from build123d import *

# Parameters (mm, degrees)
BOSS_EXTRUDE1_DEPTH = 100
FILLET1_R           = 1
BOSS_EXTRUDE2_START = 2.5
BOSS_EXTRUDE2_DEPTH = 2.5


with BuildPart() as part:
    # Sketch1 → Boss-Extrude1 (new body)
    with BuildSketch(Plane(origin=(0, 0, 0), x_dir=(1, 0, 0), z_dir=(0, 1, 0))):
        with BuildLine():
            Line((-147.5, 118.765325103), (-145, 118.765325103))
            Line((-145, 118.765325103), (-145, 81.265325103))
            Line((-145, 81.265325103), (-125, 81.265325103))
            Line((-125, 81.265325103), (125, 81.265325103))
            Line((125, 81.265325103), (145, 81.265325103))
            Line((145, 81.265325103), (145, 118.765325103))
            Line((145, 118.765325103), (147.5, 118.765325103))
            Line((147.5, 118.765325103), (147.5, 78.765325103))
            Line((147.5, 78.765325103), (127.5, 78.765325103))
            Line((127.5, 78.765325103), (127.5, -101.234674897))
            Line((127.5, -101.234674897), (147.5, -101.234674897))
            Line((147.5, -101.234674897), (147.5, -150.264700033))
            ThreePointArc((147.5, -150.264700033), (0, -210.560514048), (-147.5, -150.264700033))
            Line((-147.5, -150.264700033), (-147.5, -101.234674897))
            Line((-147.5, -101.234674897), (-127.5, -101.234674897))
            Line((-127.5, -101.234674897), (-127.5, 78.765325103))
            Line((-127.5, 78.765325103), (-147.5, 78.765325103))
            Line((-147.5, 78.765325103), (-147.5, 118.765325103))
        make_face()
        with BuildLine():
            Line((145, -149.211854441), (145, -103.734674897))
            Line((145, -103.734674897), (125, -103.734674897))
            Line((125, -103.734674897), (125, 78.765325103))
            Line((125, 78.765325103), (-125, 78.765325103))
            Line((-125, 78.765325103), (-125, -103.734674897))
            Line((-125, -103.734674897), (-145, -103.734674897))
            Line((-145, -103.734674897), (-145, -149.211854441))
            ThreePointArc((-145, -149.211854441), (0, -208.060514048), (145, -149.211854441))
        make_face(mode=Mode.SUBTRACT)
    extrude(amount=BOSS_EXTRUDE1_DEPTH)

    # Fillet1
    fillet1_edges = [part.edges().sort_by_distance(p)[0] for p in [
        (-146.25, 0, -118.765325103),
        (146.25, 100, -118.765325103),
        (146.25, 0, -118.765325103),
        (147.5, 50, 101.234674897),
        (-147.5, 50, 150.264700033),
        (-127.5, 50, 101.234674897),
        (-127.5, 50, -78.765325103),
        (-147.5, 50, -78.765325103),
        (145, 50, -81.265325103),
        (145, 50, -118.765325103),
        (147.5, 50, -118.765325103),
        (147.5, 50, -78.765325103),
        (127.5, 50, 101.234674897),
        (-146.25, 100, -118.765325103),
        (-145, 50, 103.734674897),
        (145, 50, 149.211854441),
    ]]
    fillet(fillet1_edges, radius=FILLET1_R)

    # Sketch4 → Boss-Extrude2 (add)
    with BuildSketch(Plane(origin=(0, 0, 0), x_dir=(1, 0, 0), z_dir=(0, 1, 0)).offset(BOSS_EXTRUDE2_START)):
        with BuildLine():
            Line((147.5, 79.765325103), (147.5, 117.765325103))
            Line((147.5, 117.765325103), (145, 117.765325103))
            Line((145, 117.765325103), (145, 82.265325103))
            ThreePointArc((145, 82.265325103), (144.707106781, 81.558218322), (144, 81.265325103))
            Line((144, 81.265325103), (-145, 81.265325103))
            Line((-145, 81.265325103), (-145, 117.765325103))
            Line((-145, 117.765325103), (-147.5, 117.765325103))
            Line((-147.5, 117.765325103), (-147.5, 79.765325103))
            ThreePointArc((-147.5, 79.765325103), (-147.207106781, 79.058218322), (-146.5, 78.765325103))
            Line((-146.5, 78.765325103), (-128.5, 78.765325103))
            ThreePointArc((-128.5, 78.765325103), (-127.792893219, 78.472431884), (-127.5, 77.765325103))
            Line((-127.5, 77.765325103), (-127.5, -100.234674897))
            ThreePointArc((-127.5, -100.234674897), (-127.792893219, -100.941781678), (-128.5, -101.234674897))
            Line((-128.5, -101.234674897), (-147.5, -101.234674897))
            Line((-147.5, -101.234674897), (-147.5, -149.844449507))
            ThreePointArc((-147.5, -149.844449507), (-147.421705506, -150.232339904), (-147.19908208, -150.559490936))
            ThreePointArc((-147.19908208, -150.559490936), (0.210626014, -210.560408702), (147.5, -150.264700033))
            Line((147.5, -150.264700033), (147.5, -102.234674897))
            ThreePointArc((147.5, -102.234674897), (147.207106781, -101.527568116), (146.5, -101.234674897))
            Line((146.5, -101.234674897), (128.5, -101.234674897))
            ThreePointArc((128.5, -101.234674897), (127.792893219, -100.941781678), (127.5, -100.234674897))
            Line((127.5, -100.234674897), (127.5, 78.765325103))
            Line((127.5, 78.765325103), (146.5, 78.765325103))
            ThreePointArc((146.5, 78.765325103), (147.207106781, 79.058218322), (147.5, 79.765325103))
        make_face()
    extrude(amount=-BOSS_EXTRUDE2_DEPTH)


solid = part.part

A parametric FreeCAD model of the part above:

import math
import FreeCAD as App
import Part
import Sketcher
Q = App.Units.Quantity


def edges_at(feature, points):
    """Names of the edges that pass closest to the given points."""
    edges = feature.Shape.Edges
    near = lambda p: min(range(len(edges)), key=lambda i: edges[i].distToShape(Part.Vertex(*p))[0])
    return sorted({f"Edge{near(p) + 1}" for p in points})

doc = App.newDocument("Part")
body = doc.addObject("PartDesign::Body", "Body")

sketch1 = body.newObject("Sketcher::SketchObject", "Sketch")
sketch1.AttachmentSupport = (doc.getObject("XZ_Plane"), [""])
sketch1.MapMode = "FlatFace"
sketch1.addGeometry([
    Part.LineSegment(App.Vector(-145, -118.765325, 0), App.Vector(-147.5, -118.765325, 0)),
    Part.LineSegment(App.Vector(-147.5, -118.765325, 0), App.Vector(-147.5, -78.765325, 0)),
    Part.LineSegment(App.Vector(-147.5, -78.765325, 0), App.Vector(-127.5, -78.765325, 0)),
    Part.LineSegment(App.Vector(-127.5, -78.765325, 0), App.Vector(-127.5, 101.234675, 0)),
    Part.LineSegment(App.Vector(-127.5, 101.234675, 0), App.Vector(-147.5, 101.234675, 0)),
    Part.LineSegment(App.Vector(-147.5, 101.234675, 0), App.Vector(-147.5, 150.2647, 0)),
    Part.ArcOfCircle(Part.Circle(App.Vector(0, 0, 0), App.Vector(0, 0, 1), 210.560514), math.radians(45.531967), math.radians(134.468033)),
    Part.LineSegment(App.Vector(147.5, 150.2647, 0), App.Vector(147.5, 101.234675, 0)),
    Part.LineSegment(App.Vector(147.5, 101.234675, 0), App.Vector(127.5, 101.234675, 0)),
    Part.LineSegment(App.Vector(127.5, 101.234675, 0), App.Vector(127.5, -78.765325, 0)),
    Part.LineSegment(App.Vector(127.5, -78.765325, 0), App.Vector(147.5, -78.765325, 0)),
    Part.LineSegment(App.Vector(147.5, -78.765325, 0), App.Vector(147.5, -118.765325, 0)),
    Part.LineSegment(App.Vector(147.5, -118.765325, 0), App.Vector(145, -118.765325, 0)),
    Part.LineSegment(App.Vector(145, -118.765325, 0), App.Vector(145, -81.265325, 0)),
    Part.LineSegment(App.Vector(145, -81.265325, 0), App.Vector(-145, -81.265325, 0)),
    Part.LineSegment(App.Vector(-145, -81.265325, 0), App.Vector(-145, -118.765325, 0)),
    Part.ArcOfCircle(Part.Circle(App.Vector(0, 0, 0), App.Vector(0, 0, 1), 208.060514), math.radians(45.820174), math.radians(134.179826)),
    Part.LineSegment(App.Vector(-145, 149.211854, 0), App.Vector(-145, 103.734675, 0)),
    Part.LineSegment(App.Vector(-145, 103.734675, 0), App.Vector(-125, 103.734675, 0)),
    Part.LineSegment(App.Vector(-125, 103.734675, 0), App.Vector(-125, -78.765325, 0)),
    Part.LineSegment(App.Vector(-125, -78.765325, 0), App.Vector(125, -78.765325, 0)),
    Part.LineSegment(App.Vector(125, -78.765325, 0), App.Vector(125, 103.734675, 0)),
    Part.LineSegment(App.Vector(125, 103.734675, 0), App.Vector(145, 103.734675, 0)),
    Part.LineSegment(App.Vector(145, 103.734675, 0), App.Vector(145, 149.211854, 0)),
], False)
sketch1.addConstraint([
    Sketcher.Constraint("Coincident", 0, 2, 1, 1),
    Sketcher.Constraint("Coincident", 1, 2, 2, 1),
    Sketcher.Constraint("Coincident", 2, 2, 3, 1),
    Sketcher.Constraint("Coincident", 3, 2, 4, 1),
    Sketcher.Constraint("Coincident", 4, 2, 5, 1),
    Sketcher.Constraint("Coincident", 5, 2, 6, 2),
    Sketcher.Constraint("Coincident", 6, 1, 7, 1),
    Sketcher.Constraint("Coincident", 7, 2, 8, 1),
    Sketcher.Constraint("Coincident", 8, 2, 9, 1),
    Sketcher.Constraint("Coincident", 9, 2, 10, 1),
    Sketcher.Constraint("Coincident", 10, 2, 11, 1),
    Sketcher.Constraint("Coincident", 11, 2, 12, 1),
    Sketcher.Constraint("Coincident", 12, 2, 13, 1),
    Sketcher.Constraint("Coincident", 13, 2, 14, 1),
    Sketcher.Constraint("Coincident", 14, 2, 15, 1),
    Sketcher.Constraint("Coincident", 15, 2, 0, 1),
    Sketcher.Constraint("Coincident", 16, 2, 17, 1),
    Sketcher.Constraint("Coincident", 17, 2, 18, 1),
    Sketcher.Constraint("Coincident", 18, 2, 19, 1),
    Sketcher.Constraint("Coincident", 19, 2, 20, 1),
    Sketcher.Constraint("Coincident", 20, 2, 21, 1),
    Sketcher.Constraint("Coincident", 21, 2, 22, 1),
    Sketcher.Constraint("Coincident", 22, 2, 23, 1),
    Sketcher.Constraint("Coincident", 23, 2, 16, 1),
    Sketcher.Constraint("Horizontal", 0),
    Sketcher.Constraint("Vertical", 1),
    Sketcher.Constraint("Horizontal", 2),
    Sketcher.Constraint("Vertical", 3),
    Sketcher.Constraint("Horizontal", 4),
    Sketcher.Constraint("Vertical", 5),
    Sketcher.Constraint("Vertical", 7),
    Sketcher.Constraint("Horizontal", 8),
    Sketcher.Constraint("Vertical", 9),
    Sketcher.Constraint("Horizontal", 10),
    Sketcher.Constraint("Vertical", 11),
    Sketcher.Constraint("Horizontal", 12),
    Sketcher.Constraint("Vertical", 13),
    Sketcher.Constraint("Horizontal", 14),
    Sketcher.Constraint("Vertical", 15),
    Sketcher.Constraint("Vertical", 17),
    Sketcher.Constraint("Horizontal", 18),
    Sketcher.Constraint("Vertical", 19),
    Sketcher.Constraint("Horizontal", 20),
    Sketcher.Constraint("Vertical", 21),
    Sketcher.Constraint("Horizontal", 22),
    Sketcher.Constraint("Vertical", 23),
    Sketcher.Constraint("Coincident", 6, 3, -1, 1),
    Sketcher.Constraint("Coincident", 16, 3, -1, 1),
    Sketcher.Constraint("Symmetric", 4, 2, 7, 2, -2),
    Sketcher.Constraint("Symmetric", 2, 2, 9, 2, -2),
    Sketcher.Constraint("Symmetric", 0, 2, 11, 2, -2),
    Sketcher.Constraint("Symmetric", 18, 2, 21, 2, -2),
    Sketcher.Constraint("Horizontal", 10, 2, 19, 2),
    Sketcher.Constraint("Horizontal", 16, 2, 23, 2),
    Sketcher.Constraint("Vertical", 1, 2, 4, 2),
    Sketcher.Constraint("Vertical", 15, 2, 16, 2),
    Sketcher.Constraint("Vertical", 13, 2, 22, 2),
    Sketcher.Constraint("Equal", 10, 18),
    Sketcher.Constraint("DistanceX", 2, 1, 2, 2, Q("20 mm")),
    Sketcher.Constraint("DistanceX", 14, 2, 14, 1, Q("290 mm")),
    Sketcher.Constraint("DistanceY", 1, 1, 1, 2, Q("40 mm")),
    Sketcher.Constraint("DistanceY", 3, 1, 3, 2, Q("180 mm")),
    Sketcher.Constraint("DistanceX", 0, 2, 0, 1, Q("2.5 mm")),
    Sketcher.Constraint("DistanceY", 13, 1, 13, 2, Q("37.5 mm")),
    Sketcher.Constraint("DistanceY", 19, 2, 19, 1, Q("182.5 mm")),
    Sketcher.Constraint("Radius", 6, Q("210.560514 mm")),
    Sketcher.Constraint("Radius", 16, Q("208.060514 mm")),
    Sketcher.Constraint("DistanceY", 17, 2, 17, 1, Q("45.47718 mm")),
])
pad1 = body.newObject("PartDesign::Pad", "Pad")
pad1.Profile = sketch1
pad1.Length = 100
pad1.Reversed = True
doc.recompute()

fillet = body.newObject("PartDesign::Fillet", "Fillet")
fillet.Base = (pad1, edges_at(pad1, [
    (-146.25, 0, -118.765),
    (146.25, 100, -118.765),
    (146.25, 0, -118.765),
    (147.5, 50, 101.235),
    (-147.5, 50, 150.265),
    (-127.5, 50, 101.235),
    (-127.5, 50, -78.765),
    (-147.5, 50, -78.765),
    (145, 50, -81.265),
    (145, 50, -118.765),
    (147.5, 50, -118.765),
    (147.5, 50, -78.765),
    (127.5, 50, 101.235),
    (-146.25, 100, -118.765),
    (-145, 50, 103.735),
    (145, 50, 149.212),
]))
fillet.Radius = 1

sketch2 = body.newObject("Sketcher::SketchObject", "Sketch001")
sketch2.AttachmentSupport = (doc.getObject("XZ_Plane"), [""])
sketch2.MapMode = "FlatFace"
sketch2.AttachmentOffset = App.Placement(App.Vector(0, 0, -2.5), App.Rotation())
sketch2.addGeometry([
    Part.LineSegment(App.Vector(147.5, -79.765325, 0), App.Vector(147.5, -117.765325, 0)),
    Part.LineSegment(App.Vector(147.5, -117.765325, 0), App.Vector(145, -117.765325, 0)),
    Part.LineSegment(App.Vector(145, -117.765325, 0), App.Vector(145, -82.265325, 0)),
    Part.ArcOfCircle(Part.Circle(App.Vector(144, -82.265325, 0), App.Vector(0, 0, 1), 1), math.radians(0), math.radians(90)),
    Part.LineSegment(App.Vector(144, -81.265325, 0), App.Vector(-145, -81.265325, 0)),
    Part.LineSegment(App.Vector(-145, -81.265325, 0), App.Vector(-145, -117.765325, 0)),
    Part.LineSegment(App.Vector(-145, -117.765325, 0), App.Vector(-147.5, -117.765325, 0)),
    Part.LineSegment(App.Vector(-147.5, -117.765325, 0), App.Vector(-147.5, -79.765325, 0)),
    Part.ArcOfCircle(Part.Circle(App.Vector(-146.5, -79.765325, 0), App.Vector(0, 0, 1), 1), math.radians(90), math.radians(180)),
    Part.LineSegment(App.Vector(-146.5, -78.765325, 0), App.Vector(-128.5, -78.765325, 0)),
    Part.ArcOfCircle(Part.Circle(App.Vector(-128.5, -77.765325, 0), App.Vector(0, 0, 1), 1), math.radians(-90), math.radians(0)),
    Part.LineSegment(App.Vector(-127.5, -77.765325, 0), App.Vector(-127.5, 100.234675, 0)),
    Part.ArcOfCircle(Part.Circle(App.Vector(-128.5, 100.234675, 0), App.Vector(0, 0, 1), 1), math.radians(0), math.radians(90)),
    Part.LineSegment(App.Vector(-128.5, 101.234675, 0), App.Vector(-147.5, 101.234675, 0)),
    Part.LineSegment(App.Vector(-147.5, 101.234675, 0), App.Vector(-147.5, 149.84445, 0)),
    Part.ArcOfCircle(Part.Circle(App.Vector(-146.5, 149.84445, 0), App.Vector(0, 0, 1), 1), math.radians(134.353405), math.radians(180)),
    Part.ArcOfCircle(Part.Circle(App.Vector(0, 0, 0), App.Vector(0, 0, 1), 210.560514), math.radians(45.531967), math.radians(134.353405)),
    Part.LineSegment(App.Vector(147.5, 150.2647, 0), App.Vector(147.5, 102.234675, 0)),
    Part.ArcOfCircle(Part.Circle(App.Vector(146.5, 102.234675, 0), App.Vector(0, 0, 1), 1), math.radians(-90), math.radians(0)),
    Part.LineSegment(App.Vector(146.5, 101.234675, 0), App.Vector(128.5, 101.234675, 0)),
    Part.ArcOfCircle(Part.Circle(App.Vector(128.5, 100.234675, 0), App.Vector(0, 0, 1), 1), math.radians(90), math.radians(180)),
    Part.LineSegment(App.Vector(127.5, 100.234675, 0), App.Vector(127.5, -78.765325, 0)),
    Part.LineSegment(App.Vector(127.5, -78.765325, 0), App.Vector(146.5, -78.765325, 0)),
    Part.ArcOfCircle(Part.Circle(App.Vector(146.5, -79.765325, 0), App.Vector(0, 0, 1), 1), math.radians(0), math.radians(90)),
], False)
sketch2.addConstraint([
    Sketcher.Constraint("Coincident", 0, 2, 1, 1),
    Sketcher.Constraint("Coincident", 1, 2, 2, 1),
    Sketcher.Constraint("Tangent", 2, 2, 3, 1),
    Sketcher.Constraint("Tangent", 3, 2, 4, 1),
    Sketcher.Constraint("Coincident", 4, 2, 5, 1),
    Sketcher.Constraint("Coincident", 5, 2, 6, 1),
    Sketcher.Constraint("Coincident", 6, 2, 7, 1),
    Sketcher.Constraint("Tangent", 7, 2, 8, 2),
    Sketcher.Constraint("Tangent", 8, 1, 9, 1),
    Sketcher.Constraint("Tangent", 9, 2, 10, 1),
    Sketcher.Constraint("Tangent", 10, 2, 11, 1),
    Sketcher.Constraint("Tangent", 11, 2, 12, 1),
    Sketcher.Constraint("Tangent", 12, 2, 13, 1),
    Sketcher.Constraint("Coincident", 13, 2, 14, 1),
    Sketcher.Constraint("Tangent", 14, 2, 15, 2),
    Sketcher.Constraint("Tangent", 15, 1, 16, 2),
    Sketcher.Constraint("Coincident", 16, 1, 17, 1),
    Sketcher.Constraint("Tangent", 17, 2, 18, 2),
    Sketcher.Constraint("Tangent", 18, 1, 19, 1),
    Sketcher.Constraint("Tangent", 19, 2, 20, 1),
    Sketcher.Constraint("Tangent", 20, 2, 21, 1),
    Sketcher.Constraint("Coincident", 21, 2, 22, 1),
    Sketcher.Constraint("Tangent", 22, 2, 23, 2),
    Sketcher.Constraint("Tangent", 23, 1, 0, 1),
    Sketcher.Constraint("Vertical", 0),
    Sketcher.Constraint("Horizontal", 1),
    Sketcher.Constraint("Vertical", 2),
    Sketcher.Constraint("Horizontal", 4),
    Sketcher.Constraint("Vertical", 5),
    Sketcher.Constraint("Horizontal", 6),
    Sketcher.Constraint("Vertical", 7),
    Sketcher.Constraint("Horizontal", 9),
    Sketcher.Constraint("Vertical", 11),
    Sketcher.Constraint("Horizontal", 13),
    Sketcher.Constraint("Vertical", 14),
    Sketcher.Constraint("Vertical", 17),
    Sketcher.Constraint("Horizontal", 19),
    Sketcher.Constraint("Vertical", 21),
    Sketcher.Constraint("Horizontal", 22),
    Sketcher.Constraint("Coincident", 16, 3, -1, 1),
    Sketcher.Constraint("Equal", 3, 8),
    Sketcher.Constraint("Equal", 8, 10),
    Sketcher.Constraint("Equal", 10, 12),
    Sketcher.Constraint("Equal", 12, 15),
    Sketcher.Constraint("Equal", 15, 18),
    Sketcher.Constraint("Equal", 18, 20),
    Sketcher.Constraint("Equal", 20, 23),
    Sketcher.Constraint("Symmetric", 12, 3, 20, 3, -2),
    Sketcher.Constraint("Symmetric", 8, 3, 23, 3, -2),
    Sketcher.Constraint("Symmetric", 1, 2, 5, 2, -2),
    Sketcher.Constraint("Vertical", 8, 3, 15, 3),
    Sketcher.Constraint("Vertical", 18, 3, 23, 3),
    Sketcher.Constraint("Radius", 3, Q("1 mm")),
    Sketcher.Constraint("DistanceX", 4, 2, 4, 1, Q("289 mm")),
    Sketcher.Constraint("DistanceX", 9, 1, 9, 2, Q("18 mm")),
    Sketcher.Constraint("DistanceY", 0, 2, 0, 1, Q("38 mm")),
    Sketcher.Constraint("DistanceY", 11, 1, 11, 2, Q("178 mm")),
    Sketcher.Constraint("DistanceX", 1, 2, 1, 1, Q("2.5 mm")),
    Sketcher.Constraint("DistanceY", 2, 1, 2, 2, Q("35.5 mm")),
    Sketcher.Constraint("Radius", 16, Q("210.560514 mm")),
    Sketcher.Constraint("DistanceY", 14, 1, 14, 2, Q("48.609775 mm")),
])
pad2 = body.newObject("PartDesign::Pad", "Pad001")
pad2.Profile = sketch2
pad2.Length = 2.5

doc.recompute()
